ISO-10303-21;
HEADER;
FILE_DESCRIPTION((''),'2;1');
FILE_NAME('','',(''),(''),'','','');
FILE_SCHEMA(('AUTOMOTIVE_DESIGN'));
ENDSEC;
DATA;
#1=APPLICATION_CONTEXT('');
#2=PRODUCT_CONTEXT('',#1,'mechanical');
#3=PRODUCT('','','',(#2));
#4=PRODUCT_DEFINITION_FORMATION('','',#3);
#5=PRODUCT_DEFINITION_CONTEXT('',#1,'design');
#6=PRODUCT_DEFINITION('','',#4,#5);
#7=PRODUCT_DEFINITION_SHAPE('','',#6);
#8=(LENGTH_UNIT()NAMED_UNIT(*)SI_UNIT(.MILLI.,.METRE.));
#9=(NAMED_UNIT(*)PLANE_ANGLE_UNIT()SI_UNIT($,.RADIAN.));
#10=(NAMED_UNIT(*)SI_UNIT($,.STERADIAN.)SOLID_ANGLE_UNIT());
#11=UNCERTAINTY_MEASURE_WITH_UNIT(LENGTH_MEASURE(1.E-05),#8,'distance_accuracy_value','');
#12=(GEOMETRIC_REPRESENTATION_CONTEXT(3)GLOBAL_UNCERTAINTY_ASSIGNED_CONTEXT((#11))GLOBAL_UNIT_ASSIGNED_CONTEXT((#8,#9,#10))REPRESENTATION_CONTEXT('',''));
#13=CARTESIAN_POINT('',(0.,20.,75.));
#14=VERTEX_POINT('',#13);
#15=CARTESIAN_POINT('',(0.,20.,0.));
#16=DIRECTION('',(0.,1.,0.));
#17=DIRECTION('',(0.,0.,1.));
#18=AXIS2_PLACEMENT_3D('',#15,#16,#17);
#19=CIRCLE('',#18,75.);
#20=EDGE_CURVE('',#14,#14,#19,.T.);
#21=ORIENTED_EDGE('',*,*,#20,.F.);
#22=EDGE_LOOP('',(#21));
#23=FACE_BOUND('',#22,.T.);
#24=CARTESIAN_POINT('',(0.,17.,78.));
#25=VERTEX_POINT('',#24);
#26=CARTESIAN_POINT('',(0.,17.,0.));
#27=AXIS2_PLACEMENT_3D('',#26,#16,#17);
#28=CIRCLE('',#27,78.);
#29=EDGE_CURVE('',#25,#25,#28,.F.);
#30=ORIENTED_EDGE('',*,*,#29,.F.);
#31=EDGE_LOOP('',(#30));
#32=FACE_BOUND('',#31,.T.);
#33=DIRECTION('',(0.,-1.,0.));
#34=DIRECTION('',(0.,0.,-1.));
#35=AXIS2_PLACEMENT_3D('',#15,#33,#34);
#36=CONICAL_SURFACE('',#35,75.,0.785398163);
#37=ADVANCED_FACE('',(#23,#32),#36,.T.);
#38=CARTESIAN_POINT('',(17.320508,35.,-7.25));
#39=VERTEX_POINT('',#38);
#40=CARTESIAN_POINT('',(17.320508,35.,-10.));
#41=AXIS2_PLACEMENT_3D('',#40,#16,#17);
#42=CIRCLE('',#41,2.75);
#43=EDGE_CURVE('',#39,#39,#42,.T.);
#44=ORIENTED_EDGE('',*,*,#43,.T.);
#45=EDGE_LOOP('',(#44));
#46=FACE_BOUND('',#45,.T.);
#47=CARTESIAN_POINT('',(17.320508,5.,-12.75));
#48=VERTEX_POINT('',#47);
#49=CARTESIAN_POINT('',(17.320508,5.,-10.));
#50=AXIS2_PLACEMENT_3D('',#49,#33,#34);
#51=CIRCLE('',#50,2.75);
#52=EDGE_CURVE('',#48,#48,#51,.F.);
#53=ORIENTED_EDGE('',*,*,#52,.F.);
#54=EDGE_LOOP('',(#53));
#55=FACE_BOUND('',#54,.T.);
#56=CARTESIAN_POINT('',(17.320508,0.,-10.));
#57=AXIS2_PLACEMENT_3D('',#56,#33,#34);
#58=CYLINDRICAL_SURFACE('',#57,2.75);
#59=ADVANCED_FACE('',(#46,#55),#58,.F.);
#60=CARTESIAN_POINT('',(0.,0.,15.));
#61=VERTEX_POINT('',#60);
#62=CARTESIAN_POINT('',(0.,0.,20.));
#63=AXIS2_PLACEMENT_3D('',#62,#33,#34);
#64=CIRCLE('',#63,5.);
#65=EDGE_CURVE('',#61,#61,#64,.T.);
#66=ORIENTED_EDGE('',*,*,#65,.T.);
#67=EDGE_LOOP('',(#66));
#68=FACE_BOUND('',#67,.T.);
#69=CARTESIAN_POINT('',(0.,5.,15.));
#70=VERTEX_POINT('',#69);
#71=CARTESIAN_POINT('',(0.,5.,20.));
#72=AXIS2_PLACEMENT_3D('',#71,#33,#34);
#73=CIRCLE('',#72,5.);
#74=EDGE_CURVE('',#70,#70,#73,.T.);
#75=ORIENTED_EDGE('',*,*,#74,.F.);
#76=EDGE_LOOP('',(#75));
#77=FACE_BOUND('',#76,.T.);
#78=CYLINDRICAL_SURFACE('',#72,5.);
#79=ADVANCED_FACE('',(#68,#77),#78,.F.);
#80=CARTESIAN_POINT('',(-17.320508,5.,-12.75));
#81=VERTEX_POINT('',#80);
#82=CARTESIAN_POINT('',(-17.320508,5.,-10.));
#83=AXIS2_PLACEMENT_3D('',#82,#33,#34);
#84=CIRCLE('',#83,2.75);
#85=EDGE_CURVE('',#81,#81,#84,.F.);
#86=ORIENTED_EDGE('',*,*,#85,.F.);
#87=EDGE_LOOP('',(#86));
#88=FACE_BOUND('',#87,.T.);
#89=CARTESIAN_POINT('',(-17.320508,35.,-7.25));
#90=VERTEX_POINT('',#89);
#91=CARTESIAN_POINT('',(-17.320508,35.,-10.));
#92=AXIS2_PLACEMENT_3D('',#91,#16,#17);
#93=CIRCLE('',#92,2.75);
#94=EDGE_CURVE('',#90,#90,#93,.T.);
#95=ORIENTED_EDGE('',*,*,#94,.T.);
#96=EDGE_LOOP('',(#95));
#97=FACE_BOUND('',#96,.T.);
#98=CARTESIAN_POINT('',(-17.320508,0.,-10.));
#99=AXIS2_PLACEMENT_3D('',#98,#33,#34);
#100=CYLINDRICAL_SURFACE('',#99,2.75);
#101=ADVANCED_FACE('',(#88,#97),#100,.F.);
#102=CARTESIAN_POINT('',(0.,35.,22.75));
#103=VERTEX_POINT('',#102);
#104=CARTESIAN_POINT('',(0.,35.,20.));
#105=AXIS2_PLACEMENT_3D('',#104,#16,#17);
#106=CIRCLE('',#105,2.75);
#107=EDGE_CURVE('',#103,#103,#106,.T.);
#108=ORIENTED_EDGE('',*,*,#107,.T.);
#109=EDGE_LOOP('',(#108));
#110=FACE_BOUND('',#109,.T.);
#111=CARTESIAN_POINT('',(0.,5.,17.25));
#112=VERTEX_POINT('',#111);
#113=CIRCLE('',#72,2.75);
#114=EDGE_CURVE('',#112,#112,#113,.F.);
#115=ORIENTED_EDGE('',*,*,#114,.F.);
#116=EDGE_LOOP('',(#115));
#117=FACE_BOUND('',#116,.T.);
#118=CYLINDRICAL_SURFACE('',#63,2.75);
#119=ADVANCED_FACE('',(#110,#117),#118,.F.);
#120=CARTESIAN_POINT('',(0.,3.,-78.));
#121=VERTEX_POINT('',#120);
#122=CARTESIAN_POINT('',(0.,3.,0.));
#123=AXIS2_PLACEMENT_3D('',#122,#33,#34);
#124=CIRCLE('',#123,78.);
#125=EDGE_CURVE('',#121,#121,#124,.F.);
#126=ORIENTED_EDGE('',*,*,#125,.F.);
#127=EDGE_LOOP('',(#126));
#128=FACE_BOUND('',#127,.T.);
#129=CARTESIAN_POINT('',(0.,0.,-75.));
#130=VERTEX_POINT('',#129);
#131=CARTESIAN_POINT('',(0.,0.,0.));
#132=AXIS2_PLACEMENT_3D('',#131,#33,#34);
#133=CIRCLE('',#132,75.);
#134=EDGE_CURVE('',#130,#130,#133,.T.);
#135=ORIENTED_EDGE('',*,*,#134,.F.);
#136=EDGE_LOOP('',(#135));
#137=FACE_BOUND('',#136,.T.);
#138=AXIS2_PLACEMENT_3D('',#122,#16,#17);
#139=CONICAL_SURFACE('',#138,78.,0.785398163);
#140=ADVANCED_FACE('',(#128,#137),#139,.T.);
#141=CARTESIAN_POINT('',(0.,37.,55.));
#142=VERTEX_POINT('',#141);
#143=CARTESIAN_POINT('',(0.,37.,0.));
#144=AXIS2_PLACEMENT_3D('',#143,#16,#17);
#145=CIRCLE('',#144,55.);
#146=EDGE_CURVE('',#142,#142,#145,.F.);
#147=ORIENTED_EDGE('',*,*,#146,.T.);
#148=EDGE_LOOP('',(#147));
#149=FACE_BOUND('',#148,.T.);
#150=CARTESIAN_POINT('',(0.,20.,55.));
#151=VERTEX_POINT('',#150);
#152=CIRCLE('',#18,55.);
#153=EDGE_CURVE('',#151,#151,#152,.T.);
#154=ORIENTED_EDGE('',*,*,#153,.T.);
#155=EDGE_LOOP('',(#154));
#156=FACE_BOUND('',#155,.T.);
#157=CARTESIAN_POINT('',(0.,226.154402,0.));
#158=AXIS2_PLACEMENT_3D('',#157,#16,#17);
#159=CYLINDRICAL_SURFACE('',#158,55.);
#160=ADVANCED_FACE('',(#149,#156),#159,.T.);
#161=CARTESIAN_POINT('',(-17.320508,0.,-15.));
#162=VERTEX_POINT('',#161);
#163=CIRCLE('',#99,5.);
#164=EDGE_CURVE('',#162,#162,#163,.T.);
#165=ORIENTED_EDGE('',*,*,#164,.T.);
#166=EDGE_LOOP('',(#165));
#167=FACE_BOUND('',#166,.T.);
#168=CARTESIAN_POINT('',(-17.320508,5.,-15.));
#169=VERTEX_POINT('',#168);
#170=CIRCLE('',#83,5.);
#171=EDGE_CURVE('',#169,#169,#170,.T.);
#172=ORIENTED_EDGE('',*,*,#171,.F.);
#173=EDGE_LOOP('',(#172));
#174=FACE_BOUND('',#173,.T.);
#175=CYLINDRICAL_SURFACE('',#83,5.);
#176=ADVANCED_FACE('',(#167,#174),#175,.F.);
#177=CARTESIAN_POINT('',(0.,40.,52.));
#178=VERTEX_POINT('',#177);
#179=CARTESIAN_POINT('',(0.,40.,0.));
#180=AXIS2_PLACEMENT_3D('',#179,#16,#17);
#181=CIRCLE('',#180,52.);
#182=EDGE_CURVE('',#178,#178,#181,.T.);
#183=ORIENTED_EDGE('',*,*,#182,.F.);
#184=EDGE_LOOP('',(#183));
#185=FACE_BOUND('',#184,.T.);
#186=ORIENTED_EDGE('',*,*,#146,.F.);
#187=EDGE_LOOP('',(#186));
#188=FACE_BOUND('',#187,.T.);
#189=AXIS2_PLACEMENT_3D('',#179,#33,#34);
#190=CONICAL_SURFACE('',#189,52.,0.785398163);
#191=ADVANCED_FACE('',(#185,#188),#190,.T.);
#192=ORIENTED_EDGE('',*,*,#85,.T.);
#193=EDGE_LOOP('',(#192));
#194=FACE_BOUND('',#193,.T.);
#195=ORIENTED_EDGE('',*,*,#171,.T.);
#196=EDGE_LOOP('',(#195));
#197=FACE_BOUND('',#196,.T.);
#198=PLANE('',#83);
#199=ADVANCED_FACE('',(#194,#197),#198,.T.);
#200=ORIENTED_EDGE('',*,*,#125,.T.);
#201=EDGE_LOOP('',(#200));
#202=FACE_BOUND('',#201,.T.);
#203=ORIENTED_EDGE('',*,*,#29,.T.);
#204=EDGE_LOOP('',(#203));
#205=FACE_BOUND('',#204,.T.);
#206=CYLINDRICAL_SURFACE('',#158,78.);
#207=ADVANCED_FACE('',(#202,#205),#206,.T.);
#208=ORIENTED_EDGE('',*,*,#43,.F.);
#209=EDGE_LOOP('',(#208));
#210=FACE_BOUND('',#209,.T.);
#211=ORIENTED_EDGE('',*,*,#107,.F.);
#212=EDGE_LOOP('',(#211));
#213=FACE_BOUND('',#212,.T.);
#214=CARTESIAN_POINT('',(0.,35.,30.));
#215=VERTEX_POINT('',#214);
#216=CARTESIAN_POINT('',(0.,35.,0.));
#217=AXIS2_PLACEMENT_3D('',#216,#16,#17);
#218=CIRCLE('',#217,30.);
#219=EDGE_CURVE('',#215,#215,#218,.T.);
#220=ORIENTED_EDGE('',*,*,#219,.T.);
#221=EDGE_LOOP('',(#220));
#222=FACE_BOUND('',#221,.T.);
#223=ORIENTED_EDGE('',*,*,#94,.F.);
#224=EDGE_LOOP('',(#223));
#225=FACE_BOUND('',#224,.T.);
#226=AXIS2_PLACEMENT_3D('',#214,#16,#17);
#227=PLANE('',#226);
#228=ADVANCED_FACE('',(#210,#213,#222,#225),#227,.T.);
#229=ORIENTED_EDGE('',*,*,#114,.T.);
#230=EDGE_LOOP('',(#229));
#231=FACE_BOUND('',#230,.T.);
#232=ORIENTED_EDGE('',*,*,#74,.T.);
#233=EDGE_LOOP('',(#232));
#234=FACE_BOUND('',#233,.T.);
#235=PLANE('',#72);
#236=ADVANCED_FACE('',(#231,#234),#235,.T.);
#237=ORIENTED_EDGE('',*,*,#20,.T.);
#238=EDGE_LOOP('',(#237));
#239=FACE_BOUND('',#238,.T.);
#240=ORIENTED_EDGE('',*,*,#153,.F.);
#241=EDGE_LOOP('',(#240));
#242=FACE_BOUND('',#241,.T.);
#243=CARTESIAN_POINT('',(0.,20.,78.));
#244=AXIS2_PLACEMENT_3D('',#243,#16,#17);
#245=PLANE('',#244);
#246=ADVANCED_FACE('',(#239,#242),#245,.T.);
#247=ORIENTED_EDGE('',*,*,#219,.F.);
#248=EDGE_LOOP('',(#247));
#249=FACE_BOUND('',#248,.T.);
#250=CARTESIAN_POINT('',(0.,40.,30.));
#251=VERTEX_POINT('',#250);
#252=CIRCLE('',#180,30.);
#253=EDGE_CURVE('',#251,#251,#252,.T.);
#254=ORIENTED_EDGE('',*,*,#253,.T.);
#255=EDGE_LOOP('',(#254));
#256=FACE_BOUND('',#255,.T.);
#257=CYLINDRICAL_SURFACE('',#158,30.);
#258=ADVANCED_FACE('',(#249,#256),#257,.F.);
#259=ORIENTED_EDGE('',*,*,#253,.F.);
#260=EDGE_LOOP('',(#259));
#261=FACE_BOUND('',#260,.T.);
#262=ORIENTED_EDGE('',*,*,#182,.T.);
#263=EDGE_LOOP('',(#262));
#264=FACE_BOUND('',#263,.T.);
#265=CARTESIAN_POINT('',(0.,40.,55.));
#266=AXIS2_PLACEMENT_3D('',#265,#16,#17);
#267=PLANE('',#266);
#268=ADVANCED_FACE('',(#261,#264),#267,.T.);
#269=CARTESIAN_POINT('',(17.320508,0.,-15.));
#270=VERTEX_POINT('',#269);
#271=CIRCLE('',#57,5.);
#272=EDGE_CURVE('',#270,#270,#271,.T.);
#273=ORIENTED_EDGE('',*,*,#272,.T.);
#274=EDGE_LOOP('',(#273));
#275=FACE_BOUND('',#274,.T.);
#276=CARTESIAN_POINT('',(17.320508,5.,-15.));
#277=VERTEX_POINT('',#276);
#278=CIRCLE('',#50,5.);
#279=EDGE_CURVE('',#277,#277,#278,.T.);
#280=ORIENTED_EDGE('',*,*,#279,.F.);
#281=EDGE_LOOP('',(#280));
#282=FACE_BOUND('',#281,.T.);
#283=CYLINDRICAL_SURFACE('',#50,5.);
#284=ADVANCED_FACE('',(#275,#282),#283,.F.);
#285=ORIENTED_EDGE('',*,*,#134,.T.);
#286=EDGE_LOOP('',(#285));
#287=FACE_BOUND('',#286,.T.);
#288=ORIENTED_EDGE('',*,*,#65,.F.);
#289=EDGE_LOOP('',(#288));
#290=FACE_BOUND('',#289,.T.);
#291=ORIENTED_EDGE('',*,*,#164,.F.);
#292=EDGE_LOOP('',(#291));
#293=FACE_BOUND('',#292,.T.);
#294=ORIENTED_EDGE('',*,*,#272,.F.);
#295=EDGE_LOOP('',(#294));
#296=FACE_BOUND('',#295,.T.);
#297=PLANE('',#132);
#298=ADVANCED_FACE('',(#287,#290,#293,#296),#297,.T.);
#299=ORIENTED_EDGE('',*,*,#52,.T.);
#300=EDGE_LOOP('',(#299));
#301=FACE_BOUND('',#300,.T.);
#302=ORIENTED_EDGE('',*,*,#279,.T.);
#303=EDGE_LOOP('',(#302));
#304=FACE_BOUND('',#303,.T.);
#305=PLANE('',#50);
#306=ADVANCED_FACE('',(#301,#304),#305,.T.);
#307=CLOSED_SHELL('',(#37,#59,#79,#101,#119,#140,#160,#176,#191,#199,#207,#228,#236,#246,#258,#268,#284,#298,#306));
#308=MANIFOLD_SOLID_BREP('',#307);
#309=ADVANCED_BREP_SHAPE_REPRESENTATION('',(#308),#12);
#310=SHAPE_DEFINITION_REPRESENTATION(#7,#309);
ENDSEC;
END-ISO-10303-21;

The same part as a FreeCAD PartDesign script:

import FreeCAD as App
import Part
import Sketcher
from FreeCAD import Vector
Q = App.Units.Quantity


def edges_at(feature, points):
    """Names of the edges that pass closest to the given points."""
    edges = feature.Shape.Edges
    near = lambda p: min(range(len(edges)), key=lambda i: edges[i].distToShape(Part.Vertex(*p))[0])
    return sorted({f"Edge{near(p) + 1}" for p in points})


def add_polygon(sketch, points):
    """Adds a closed chain of lines whose ends are joined by coincident constraints."""
    first, n = sketch.GeometryCount, len(points)
    for a, b in zip(points, points[1:] + points[:1]):
        sketch.addGeometry(Part.LineSegment(App.Vector(*a, 0), App.Vector(*b, 0)), False)
    for i in range(n):
        sketch.addConstraint(Sketcher.Constraint("Coincident", first + i, 2, first + (i + 1) % n, 1))

doc = App.newDocument("Part")
body = doc.addObject("PartDesign::Body", "Body")

# Sketch on YZ plane
sketch1 = body.newObject("Sketcher::SketchObject", "Sketch")
sketch1.AttachmentSupport = (doc.getObject("YZ_Plane"), [""])
sketch1.MapMode = "FlatFace"
add_polygon(sketch1, [(0, 78), (0, 0), (35, 0), (35, 30), (40, 30), (40, 55), (20, 55), (20, 78)])  # lines 0-7
sketch1.addConstraint([
    Sketcher.Constraint("Vertical", 0),
    Sketcher.Constraint("Horizontal", 1),
    Sketcher.Constraint("Vertical", 2),
    Sketcher.Constraint("Horizontal", 3),
    Sketcher.Constraint("Vertical", 4),
    Sketcher.Constraint("Horizontal", 5),
    Sketcher.Constraint("Vertical", 6),
    Sketcher.Constraint("Horizontal", 7),
    Sketcher.Constraint("Coincident", 0, 2, -1, 1),
    Sketcher.Constraint("Equal", 5, 7),
    Sketcher.Constraint("DistanceX", 1, 1, 1, 2, Q("35 mm")),
    Sketcher.Constraint("DistanceX", 3, 1, 3, 2, Q("5 mm")),
    Sketcher.Constraint("DistanceY", 0, 2, 0, 1, Q("78 mm")),
    Sketcher.Constraint("DistanceY", 2, 1, 2, 2, Q("30 mm")),
    Sketcher.Constraint("DistanceY", 4, 1, 4, 2, Q("25 mm")),
])
revolution = body.newObject("PartDesign::Revolution", "Revolution")
revolution.Profile = sketch1
revolution.ReferenceAxis = (sketch1, ["H_Axis"])
revolution.Angle = 360

# Sketch on XZ plane
sketch2 = body.newObject("Sketcher::SketchObject", "Sketch001")
sketch2.AttachmentSupport = (doc.getObject("XZ_Plane"), [""])
sketch2.MapMode = "FlatFace"
sketch2.addGeometry(Part.Circle(Vector(0, 20, 0), Vector(0, 0, 1), 2.8), False)
sketch2.addConstraint([
    Sketcher.Constraint("PointOnObject", 0, 3, -2),
    Sketcher.Constraint("Diameter", 0, Q("5.5 mm")),
    Sketcher.Constraint("DistanceY", -1, 1, 0, 3, Q("20 mm")),
])
doc.recompute()
hole = body.newObject("PartDesign::Hole", "Hole")
hole.Profile = sketch2
hole.ThreadType = "None"
hole.Diameter = 5.5
hole.DepthType = "ThroughAll"
doc.recompute()

polarpattern = body.newObject("PartDesign::PolarPattern", "PolarPattern")
polarpattern.Originals = [hole]
polarpattern.Axis = (doc.getObject("Y_Axis"), [""])
polarpattern.Angle = 360
polarpattern.Occurrences = 3
body.Tip = polarpattern
doc.recompute()

chamfer = body.newObject("PartDesign::Chamfer", "Chamfer")
chamfer.Base = (polarpattern, edges_at(polarpattern, [(0, 40, -55), (0, 20, -78), (0, 0, -78)]))
chamfer.Size = 3

# Sketch on XZ plane
sketch3 = body.newObject("Sketcher::SketchObject", "Sketch002")
sketch3.AttachmentSupport = (doc.getObject("XZ_Plane"), [""])
sketch3.MapMode = "FlatFace"
sketch3.addGeometry([
    Part.Circle(Vector(0, 20, 0), Vector(0, 0, 1), 5),
    Part.Circle(Vector(17, -10, 0), Vector(0, 0, 1), 5),
    Part.Circle(Vector(-17, -10, 0), Vector(0, 0, 1), 5),
], False)
sketch3.addConstraint([
    Sketcher.Constraint("Equal", 0, 1),
    Sketcher.Constraint("Equal", 1, 2),
    Sketcher.Constraint("Symmetric", 1, 3, 2, 3, -2),
    Sketcher.Constraint("PointOnObject", 0, 3, -2),
    Sketcher.Constraint("Diameter", 0, Q("10 mm")),
    Sketcher.Constraint("DistanceY", -1, 1, 0, 3, Q("20 mm")),
    Sketcher.Constraint("DistanceY", 1, 3, -1, 1, Q("10 mm")),
    Sketcher.Constraint("DistanceX", -1, 1, 1, 3, Q("17.320508 mm")),
])
pocket1 = body.newObject("PartDesign::Pocket", "Pocket")
pocket1.Profile = sketch3
pocket1.Length = 5

doc.recompute()
